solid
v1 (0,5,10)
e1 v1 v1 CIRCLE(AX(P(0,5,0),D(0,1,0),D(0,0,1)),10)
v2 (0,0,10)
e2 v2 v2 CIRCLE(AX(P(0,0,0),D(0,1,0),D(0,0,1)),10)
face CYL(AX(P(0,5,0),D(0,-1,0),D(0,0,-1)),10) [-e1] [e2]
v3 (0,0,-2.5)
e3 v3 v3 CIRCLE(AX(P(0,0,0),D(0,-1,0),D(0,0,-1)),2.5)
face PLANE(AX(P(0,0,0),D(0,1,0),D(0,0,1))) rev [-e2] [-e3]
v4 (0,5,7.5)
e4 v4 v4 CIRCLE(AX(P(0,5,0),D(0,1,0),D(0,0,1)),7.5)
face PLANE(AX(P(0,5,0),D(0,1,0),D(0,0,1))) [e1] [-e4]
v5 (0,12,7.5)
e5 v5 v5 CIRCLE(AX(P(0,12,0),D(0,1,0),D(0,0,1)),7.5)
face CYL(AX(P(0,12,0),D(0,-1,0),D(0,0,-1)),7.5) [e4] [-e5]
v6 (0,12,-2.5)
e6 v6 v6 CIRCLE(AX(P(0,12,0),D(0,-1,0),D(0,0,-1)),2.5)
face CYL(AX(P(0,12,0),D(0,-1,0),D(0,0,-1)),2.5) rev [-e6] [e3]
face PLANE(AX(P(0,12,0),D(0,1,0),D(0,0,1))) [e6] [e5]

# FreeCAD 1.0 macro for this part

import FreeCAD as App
import Part
import Sketcher
from FreeCAD import Vector
Q = App.Units.Quantity

doc = App.newDocument("Part")
params = doc.addObject("Spreadsheet::Sheet", "Params")
for row, (alias, value) in enumerate([
    ("sketch1_diameter", "20 mm"),
    ("pad1_length", "5 mm"),
    ("sketch2_diameter", "15 mm"),
    ("pad2_length", "7 mm"),
    ("sketch3_diameter", "5 mm"),
    ("pocket1_length", "12 mm"),
], start=1):
    params.set(f"A{row}", alias)
    params.set(f"B{row}", "=" + value)
    params.setAlias(f"B{row}", alias)

body = doc.addObject("PartDesign::Body", "Body")

# Sketch on XZ plane
sketch1 = body.newObject("Sketcher::SketchObject", "Sketch")
sketch1.AttachmentSupport = (doc.getObject("XZ_Plane"), [""])
sketch1.MapMode = "FlatFace"
sketch1.addGeometry(Part.Circle(Vector(0, 0, 0), Vector(0, 0, 1), 10), False)
sketch1.addConstraint([
    Sketcher.Constraint("Coincident", 0, 3, -1, 1),
    Sketcher.Constraint("Diameter", 0, Q("20 mm")),
])
sketch1.setExpression("Constraints[1]", "Params.sketch1_diameter")
pad1 = body.newObject("PartDesign::Pad", "Pad")
pad1.Profile = sketch1
pad1.setExpression("Length", "Params.pad1_length")
pad1.Reversed = True

# Sketch on XZ plane
sketch2 = body.newObject("Sketcher::SketchObject", "Sketch001")
sketch2.AttachmentSupport = (doc.getObject("XZ_Plane"), [""])
sketch2.MapMode = "FlatFace"
sketch2.AttachmentOffset = App.Placement(Vector(0, 0, -5), App.Rotation())
sketch2.addGeometry(Part.Circle(Vector(0, 0, 0), Vector(0, 0, 1), 8), False)
sketch2.addConstraint([
    Sketcher.Constraint("Coincident", 0, 3, -1, 1),
    Sketcher.Constraint("Diameter", 0, Q("15 mm")),
])
sketch2.setExpression("Constraints[1]", "Params.sketch2_diameter")
pad2 = body.newObject("PartDesign::Pad", "Pad001")
pad2.Profile = sketch2
pad2.setExpression("Length", "Params.pad2_length")
pad2.Reversed = True

# Sketch on XZ plane
sketch3 = body.newObject("Sketcher::SketchObject", "Sketch002")
sketch3.AttachmentSupport = (doc.getObject("XZ_Plane"), [""])
sketch3.MapMode = "FlatFace"
sketch3.addGeometry(Part.Circle(Vector(0, 0, 0), Vector(0, 0, 1), 2.5), False)
sketch3.addConstraint([
    Sketcher.Constraint("Coincident", 0, 3, -1, 1),
    Sketcher.Constraint("Diameter", 0, Q("5 mm")),
])
sketch3.setExpression("Constraints[1]", "Params.sketch3_diameter")
pocket1 = body.newObject("PartDesign::Pocket", "Pocket")
pocket1.Profile = sketch3
pocket1.setExpression("Length", "Params.pocket1_length")

doc.recompute()
